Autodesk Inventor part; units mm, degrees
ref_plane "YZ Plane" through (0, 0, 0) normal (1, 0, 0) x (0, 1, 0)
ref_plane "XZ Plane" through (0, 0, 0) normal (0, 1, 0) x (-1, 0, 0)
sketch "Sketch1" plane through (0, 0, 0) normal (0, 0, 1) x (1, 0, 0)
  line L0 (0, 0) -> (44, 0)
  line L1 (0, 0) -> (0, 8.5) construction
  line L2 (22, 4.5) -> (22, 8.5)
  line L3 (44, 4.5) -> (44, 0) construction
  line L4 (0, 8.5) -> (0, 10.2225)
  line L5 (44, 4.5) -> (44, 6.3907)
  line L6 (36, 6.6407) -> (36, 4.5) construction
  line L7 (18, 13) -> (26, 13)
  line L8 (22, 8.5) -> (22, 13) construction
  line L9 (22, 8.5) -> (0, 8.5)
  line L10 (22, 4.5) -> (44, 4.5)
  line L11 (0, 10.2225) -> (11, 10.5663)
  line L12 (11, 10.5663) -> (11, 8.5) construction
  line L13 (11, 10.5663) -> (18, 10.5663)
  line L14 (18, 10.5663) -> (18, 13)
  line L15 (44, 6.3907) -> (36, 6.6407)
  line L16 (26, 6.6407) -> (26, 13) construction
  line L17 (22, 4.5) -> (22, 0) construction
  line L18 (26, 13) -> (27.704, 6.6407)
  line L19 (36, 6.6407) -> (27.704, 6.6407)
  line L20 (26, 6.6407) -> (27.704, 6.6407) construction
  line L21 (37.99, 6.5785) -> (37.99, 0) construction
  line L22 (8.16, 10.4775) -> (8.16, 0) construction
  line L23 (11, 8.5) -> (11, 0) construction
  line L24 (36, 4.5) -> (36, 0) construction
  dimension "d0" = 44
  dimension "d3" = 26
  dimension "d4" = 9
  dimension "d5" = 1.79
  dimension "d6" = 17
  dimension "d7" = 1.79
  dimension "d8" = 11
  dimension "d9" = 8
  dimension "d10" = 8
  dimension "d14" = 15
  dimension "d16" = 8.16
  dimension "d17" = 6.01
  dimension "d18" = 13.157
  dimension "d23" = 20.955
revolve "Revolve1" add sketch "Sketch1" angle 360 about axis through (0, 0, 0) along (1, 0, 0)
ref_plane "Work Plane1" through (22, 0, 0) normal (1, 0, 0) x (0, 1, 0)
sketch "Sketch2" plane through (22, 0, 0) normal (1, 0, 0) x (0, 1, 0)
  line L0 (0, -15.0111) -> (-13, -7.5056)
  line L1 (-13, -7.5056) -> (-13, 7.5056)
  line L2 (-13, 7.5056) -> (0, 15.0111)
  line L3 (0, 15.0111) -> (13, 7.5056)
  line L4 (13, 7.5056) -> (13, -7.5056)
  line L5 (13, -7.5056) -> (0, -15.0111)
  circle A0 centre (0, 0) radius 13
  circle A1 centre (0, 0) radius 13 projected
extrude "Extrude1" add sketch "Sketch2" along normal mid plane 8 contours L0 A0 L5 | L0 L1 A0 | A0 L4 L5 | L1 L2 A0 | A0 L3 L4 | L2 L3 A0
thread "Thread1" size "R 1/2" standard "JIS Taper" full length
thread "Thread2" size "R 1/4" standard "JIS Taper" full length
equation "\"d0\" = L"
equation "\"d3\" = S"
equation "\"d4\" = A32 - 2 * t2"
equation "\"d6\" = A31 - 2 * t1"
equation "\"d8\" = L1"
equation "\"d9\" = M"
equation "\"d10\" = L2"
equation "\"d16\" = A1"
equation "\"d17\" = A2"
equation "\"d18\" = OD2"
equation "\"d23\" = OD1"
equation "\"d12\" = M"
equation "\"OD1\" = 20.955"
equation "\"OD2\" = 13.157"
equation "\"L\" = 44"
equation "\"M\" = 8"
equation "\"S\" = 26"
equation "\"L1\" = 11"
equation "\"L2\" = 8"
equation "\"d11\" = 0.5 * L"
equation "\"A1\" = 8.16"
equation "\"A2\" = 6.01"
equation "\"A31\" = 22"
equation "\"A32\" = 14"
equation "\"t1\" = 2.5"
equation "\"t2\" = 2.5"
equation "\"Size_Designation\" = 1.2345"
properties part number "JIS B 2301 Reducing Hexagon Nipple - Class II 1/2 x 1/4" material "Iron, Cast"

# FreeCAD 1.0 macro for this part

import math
import FreeCAD as App
import Part
import Sketcher
from FreeCAD import Vector
Q = App.Units.Quantity

doc = App.newDocument("Part")
body = doc.addObject("PartDesign::Body", "Body")

# Sketch on XY plane
sketch1 = body.newObject("Sketcher::SketchObject", "Sketch")
sketch1.AttachmentSupport = (doc.getObject("XY_Plane"), [""])
sketch1.MapMode = "FlatFace"
sketch1.addGeometry([
    Part.LineSegment(Vector(22, 8.5, 0), Vector(22, 4.5, 0)),  # 0
    Part.LineSegment(Vector(22, 4.5, 0), Vector(44, 4.5, 0)),  # 1
    Part.LineSegment(Vector(44, 4.5, 0), Vector(44, 6.3907, 0)),  # 2
    Part.LineSegment(Vector(44, 6.3907, 0), Vector(36, 6.6407, 0)),  # 3
    Part.LineSegment(Vector(36, 6.6407, 0), Vector(27.704, 6.6407, 0)),  # 4
    Part.LineSegment(Vector(27.704, 6.6407, 0), Vector(26, 13, 0)),  # 5
    Part.LineSegment(Vector(26, 13, 0), Vector(18, 13, 0)),  # 6
    Part.LineSegment(Vector(18, 13, 0), Vector(18, 10.5663, 0)),  # 7
    Part.LineSegment(Vector(18, 10.5663, 0), Vector(11, 10.5663, 0)),  # 8
    Part.LineSegment(Vector(11, 10.5663, 0), Vector(0, 10.2225, 0)),  # 9
    Part.LineSegment(Vector(0, 10.2225, 0), Vector(0, 8.5, 0)),  # 10
    Part.LineSegment(Vector(0, 8.5, 0), Vector(22, 8.5, 0)),  # 11
], False)
sketch1.addConstraint([
    Sketcher.Constraint("Coincident", 0, 2, 1, 1),
    Sketcher.Constraint("Coincident", 1, 2, 2, 1),
    Sketcher.Constraint("Coincident", 2, 2, 3, 1),
    Sketcher.Constraint("Coincident", 3, 2, 4, 1),
    Sketcher.Constraint("Coincident", 4, 2, 5, 1),
    Sketcher.Constraint("Coincident", 5, 2, 6, 1),
    Sketcher.Constraint("Coincident", 6, 2, 7, 1),
    Sketcher.Constraint("Coincident", 7, 2, 8, 1),
    Sketcher.Constraint("Coincident", 8, 2, 9, 1),
    Sketcher.Constraint("Coincident", 9, 2, 10, 1),
    Sketcher.Constraint("Coincident", 10, 2, 11, 1),
    Sketcher.Constraint("Coincident", 11, 2, 0, 1),
    Sketcher.Constraint("Vertical", 0),
    Sketcher.Constraint("Horizontal", 1),
    Sketcher.Constraint("Vertical", 2),
    Sketcher.Constraint("Horizontal", 4),
    Sketcher.Constraint("Horizontal", 6),
    Sketcher.Constraint("Vertical", 7),
    Sketcher.Constraint("Horizontal", 8),
    Sketcher.Constraint("Vertical", 10),
    Sketcher.Constraint("Horizontal", 11),
    Sketcher.Constraint("PointOnObject", 9, 2, -2),
    Sketcher.Constraint("Equal", 1, 11),
    Sketcher.Constraint("DistanceX", 6, 2, 6, 1, Q("8 mm")),
    Sketcher.Constraint("DistanceX", -1, 1, 1, 2, Q("44 mm")),
    Sketcher.Constraint("DistanceX", -1, 1, 5, 2, Q("26 mm")),
    Sketcher.Constraint("DistanceX", -1, 1, 8, 2, Q("11 mm")),
    Sketcher.Constraint("DistanceX", 3, 2, 2, 2, Q("8 mm")),
    Sketcher.Constraint("DistanceY", 0, 2, 0, 1, Q("4 mm")),
    Sketcher.Constraint("Angle", 5, Q("105.0003 deg")),
    Sketcher.Constraint("DistanceY", -1, 1, 5, 2, Q("13 mm")),
    Sketcher.Constraint("DistanceY", -1, 1, 0, 2, Q("4.5 mm")),
    Sketcher.Constraint("Angle", 3, Q("178.21 deg")),
    Sketcher.Constraint("Angle", 9, Q("-178.2098 deg")),
    Sketcher.Constraint("DistanceX", 4, 2, 4, 1, Q("8.296 mm")),
    Sketcher.Constraint("DistanceY", 7, 2, 7, 1, Q("2.4337 mm")),
])
revolution = body.newObject("PartDesign::Revolution", "Revolution")
revolution.Profile = sketch1
revolution.ReferenceAxis = (sketch1, ["H_Axis"])
revolution.Angle = 360

# Sketch on YZ plane
sketch2 = body.newObject("Sketcher::SketchObject", "Sketch001")
sketch2.AttachmentSupport = (doc.getObject("YZ_Plane"), [""])
sketch2.MapMode = "FlatFace"
sketch2.AttachmentOffset = App.Placement(Vector(0, 0, 22), App.Rotation())
sketch2.addGeometry([
    Part.LineSegment(Vector(-6.499974, -11.258365, 0), Vector(0, -15.0111, 0)),  # 0
    Part.LineSegment(Vector(0, -15.0111, 0), Vector(6.499974, -11.258365, 0)),  # 1
    Part.ArcOfCircle(Part.Circle(Vector(0, 0, 0), Vector(0, 0, 1), 13), math.radians(-119.999824), math.radians(-60.000177)),  # 2
    Part.LineSegment(Vector(-13, -7.5056, 0), Vector(-6.499974, -11.258365, 0)),  # 3
    Part.ArcOfCircle(Part.Circle(Vector(0, 0, 0), Vector(0, 0, 1), 13), math.radians(180), math.radians(240.000176)),  # 4
    Part.LineSegment(Vector(-13, 0, 0), Vector(-13, -7.5056, 0)),  # 5
    Part.ArcOfCircle(Part.Circle(Vector(0, 0, 0), Vector(0, 0, 1), 13), math.radians(-60.000177), math.radians(0)),  # 6
    Part.LineSegment(Vector(6.499974, -11.258365, 0), Vector(13, -7.5056, 0)),  # 7
    Part.LineSegment(Vector(13, -7.5056, 0), Vector(13, 0, 0)),  # 8
    Part.LineSegment(Vector(-13, 7.5056, 0), Vector(-13, 0, 0)),  # 9
    Part.ArcOfCircle(Part.Circle(Vector(0, 0, 0), Vector(0, 0, 1), 13), math.radians(119.999823), math.radians(180)),  # 10
    Part.LineSegment(Vector(-6.499974, 11.258365, 0), Vector(-13, 7.5056, 0)),  # 11
    Part.ArcOfCircle(Part.Circle(Vector(0, 0, 0), Vector(0, 0, 1), 13), math.radians(0), math.radians(60.000176)),  # 12
    Part.LineSegment(Vector(13, 0, 0), Vector(13, 7.5056, 0)),  # 13
    Part.LineSegment(Vector(13, 7.5056, 0), Vector(6.499974, 11.258365, 0)),  # 14
    Part.LineSegment(Vector(0, 15.0111, 0), Vector(-6.499974, 11.258365, 0)),  # 15
    Part.ArcOfCircle(Part.Circle(Vector(0, 0, 0), Vector(0, 0, 1), 13), math.radians(60.000176), math.radians(119.999823)),  # 16
    Part.LineSegment(Vector(6.499974, 11.258365, 0), Vector(0, 15.0111, 0)),  # 17
], False)
sketch2.addConstraint([
    Sketcher.Constraint("Coincident", 0, 2, 1, 1),
    Sketcher.Constraint("Tangent", 1, 2, 2, 2),
    Sketcher.Constraint("Tangent", 2, 1, 0, 1),
    Sketcher.Constraint("Tangent", 3, 2, 4, 2),
    Sketcher.Constraint("Tangent", 4, 1, 5, 1),
    Sketcher.Constraint("Coincident", 5, 2, 3, 1),
    Sketcher.Constraint("Tangent", 6, 1, 7, 1),
    Sketcher.Constraint("Coincident", 7, 2, 8, 1),
    Sketcher.Constraint("Tangent", 8, 2, 6, 2),
    Sketcher.Constraint("Tangent", 9, 2, 10, 2),
    Sketcher.Constraint("Tangent", 10, 1, 11, 1),
    Sketcher.Constraint("Coincident", 11, 2, 9, 1),
    Sketcher.Constraint("Tangent", 12, 1, 13, 1),
    Sketcher.Constraint("Coincident", 13, 2, 14, 1),
    Sketcher.Constraint("Tangent", 14, 2, 12, 2),
    Sketcher.Constraint("Tangent", 15, 2, 16, 2),
    Sketcher.Constraint("Tangent", 16, 1, 17, 1),
    Sketcher.Constraint("Coincident", 17, 2, 15, 1),
    Sketcher.Constraint("Vertical", 5),
    Sketcher.Constraint("Vertical", 8),
    Sketcher.Constraint("Vertical", 9),
    Sketcher.Constraint("Vertical", 13),
    Sketcher.Constraint("Coincident", 2, 3, -1, 1),
    Sketcher.Constraint("Coincident", 4, 3, -1, 1),
    Sketcher.Constraint("Coincident", 6, 3, -1, 1),
    Sketcher.Constraint("Coincident", 10, 3, -1, 1),
    Sketcher.Constraint("Coincident", 12, 3, -1, 1),
    Sketcher.Constraint("Coincident", 16, 3, -1, 1),
    Sketcher.Constraint("Coincident", 3, 2, 2, 1),
    Sketcher.Constraint("Coincident", 6, 1, 1, 2),
    Sketcher.Constraint("Coincident", 15, 2, 10, 1),
    Sketcher.Constraint("Coincident", 16, 1, 14, 2),
    Sketcher.Constraint("Equal", 6, 10),
    Sketcher.Constraint("Symmetric", 0, 2, 17, 2, -1, 1),
    Sketcher.Constraint("PointOnObject", 0, 2, -2),
    Sketcher.Constraint("Equal", 1, 3),
    Sketcher.Constraint("Radius", 2, Q("13 mm")),
])
pad1 = body.newObject("PartDesign::Pad", "Pad")
pad1.Profile = sketch2
pad1.Length = 8
pad1.Midplane = True

doc.recompute()
